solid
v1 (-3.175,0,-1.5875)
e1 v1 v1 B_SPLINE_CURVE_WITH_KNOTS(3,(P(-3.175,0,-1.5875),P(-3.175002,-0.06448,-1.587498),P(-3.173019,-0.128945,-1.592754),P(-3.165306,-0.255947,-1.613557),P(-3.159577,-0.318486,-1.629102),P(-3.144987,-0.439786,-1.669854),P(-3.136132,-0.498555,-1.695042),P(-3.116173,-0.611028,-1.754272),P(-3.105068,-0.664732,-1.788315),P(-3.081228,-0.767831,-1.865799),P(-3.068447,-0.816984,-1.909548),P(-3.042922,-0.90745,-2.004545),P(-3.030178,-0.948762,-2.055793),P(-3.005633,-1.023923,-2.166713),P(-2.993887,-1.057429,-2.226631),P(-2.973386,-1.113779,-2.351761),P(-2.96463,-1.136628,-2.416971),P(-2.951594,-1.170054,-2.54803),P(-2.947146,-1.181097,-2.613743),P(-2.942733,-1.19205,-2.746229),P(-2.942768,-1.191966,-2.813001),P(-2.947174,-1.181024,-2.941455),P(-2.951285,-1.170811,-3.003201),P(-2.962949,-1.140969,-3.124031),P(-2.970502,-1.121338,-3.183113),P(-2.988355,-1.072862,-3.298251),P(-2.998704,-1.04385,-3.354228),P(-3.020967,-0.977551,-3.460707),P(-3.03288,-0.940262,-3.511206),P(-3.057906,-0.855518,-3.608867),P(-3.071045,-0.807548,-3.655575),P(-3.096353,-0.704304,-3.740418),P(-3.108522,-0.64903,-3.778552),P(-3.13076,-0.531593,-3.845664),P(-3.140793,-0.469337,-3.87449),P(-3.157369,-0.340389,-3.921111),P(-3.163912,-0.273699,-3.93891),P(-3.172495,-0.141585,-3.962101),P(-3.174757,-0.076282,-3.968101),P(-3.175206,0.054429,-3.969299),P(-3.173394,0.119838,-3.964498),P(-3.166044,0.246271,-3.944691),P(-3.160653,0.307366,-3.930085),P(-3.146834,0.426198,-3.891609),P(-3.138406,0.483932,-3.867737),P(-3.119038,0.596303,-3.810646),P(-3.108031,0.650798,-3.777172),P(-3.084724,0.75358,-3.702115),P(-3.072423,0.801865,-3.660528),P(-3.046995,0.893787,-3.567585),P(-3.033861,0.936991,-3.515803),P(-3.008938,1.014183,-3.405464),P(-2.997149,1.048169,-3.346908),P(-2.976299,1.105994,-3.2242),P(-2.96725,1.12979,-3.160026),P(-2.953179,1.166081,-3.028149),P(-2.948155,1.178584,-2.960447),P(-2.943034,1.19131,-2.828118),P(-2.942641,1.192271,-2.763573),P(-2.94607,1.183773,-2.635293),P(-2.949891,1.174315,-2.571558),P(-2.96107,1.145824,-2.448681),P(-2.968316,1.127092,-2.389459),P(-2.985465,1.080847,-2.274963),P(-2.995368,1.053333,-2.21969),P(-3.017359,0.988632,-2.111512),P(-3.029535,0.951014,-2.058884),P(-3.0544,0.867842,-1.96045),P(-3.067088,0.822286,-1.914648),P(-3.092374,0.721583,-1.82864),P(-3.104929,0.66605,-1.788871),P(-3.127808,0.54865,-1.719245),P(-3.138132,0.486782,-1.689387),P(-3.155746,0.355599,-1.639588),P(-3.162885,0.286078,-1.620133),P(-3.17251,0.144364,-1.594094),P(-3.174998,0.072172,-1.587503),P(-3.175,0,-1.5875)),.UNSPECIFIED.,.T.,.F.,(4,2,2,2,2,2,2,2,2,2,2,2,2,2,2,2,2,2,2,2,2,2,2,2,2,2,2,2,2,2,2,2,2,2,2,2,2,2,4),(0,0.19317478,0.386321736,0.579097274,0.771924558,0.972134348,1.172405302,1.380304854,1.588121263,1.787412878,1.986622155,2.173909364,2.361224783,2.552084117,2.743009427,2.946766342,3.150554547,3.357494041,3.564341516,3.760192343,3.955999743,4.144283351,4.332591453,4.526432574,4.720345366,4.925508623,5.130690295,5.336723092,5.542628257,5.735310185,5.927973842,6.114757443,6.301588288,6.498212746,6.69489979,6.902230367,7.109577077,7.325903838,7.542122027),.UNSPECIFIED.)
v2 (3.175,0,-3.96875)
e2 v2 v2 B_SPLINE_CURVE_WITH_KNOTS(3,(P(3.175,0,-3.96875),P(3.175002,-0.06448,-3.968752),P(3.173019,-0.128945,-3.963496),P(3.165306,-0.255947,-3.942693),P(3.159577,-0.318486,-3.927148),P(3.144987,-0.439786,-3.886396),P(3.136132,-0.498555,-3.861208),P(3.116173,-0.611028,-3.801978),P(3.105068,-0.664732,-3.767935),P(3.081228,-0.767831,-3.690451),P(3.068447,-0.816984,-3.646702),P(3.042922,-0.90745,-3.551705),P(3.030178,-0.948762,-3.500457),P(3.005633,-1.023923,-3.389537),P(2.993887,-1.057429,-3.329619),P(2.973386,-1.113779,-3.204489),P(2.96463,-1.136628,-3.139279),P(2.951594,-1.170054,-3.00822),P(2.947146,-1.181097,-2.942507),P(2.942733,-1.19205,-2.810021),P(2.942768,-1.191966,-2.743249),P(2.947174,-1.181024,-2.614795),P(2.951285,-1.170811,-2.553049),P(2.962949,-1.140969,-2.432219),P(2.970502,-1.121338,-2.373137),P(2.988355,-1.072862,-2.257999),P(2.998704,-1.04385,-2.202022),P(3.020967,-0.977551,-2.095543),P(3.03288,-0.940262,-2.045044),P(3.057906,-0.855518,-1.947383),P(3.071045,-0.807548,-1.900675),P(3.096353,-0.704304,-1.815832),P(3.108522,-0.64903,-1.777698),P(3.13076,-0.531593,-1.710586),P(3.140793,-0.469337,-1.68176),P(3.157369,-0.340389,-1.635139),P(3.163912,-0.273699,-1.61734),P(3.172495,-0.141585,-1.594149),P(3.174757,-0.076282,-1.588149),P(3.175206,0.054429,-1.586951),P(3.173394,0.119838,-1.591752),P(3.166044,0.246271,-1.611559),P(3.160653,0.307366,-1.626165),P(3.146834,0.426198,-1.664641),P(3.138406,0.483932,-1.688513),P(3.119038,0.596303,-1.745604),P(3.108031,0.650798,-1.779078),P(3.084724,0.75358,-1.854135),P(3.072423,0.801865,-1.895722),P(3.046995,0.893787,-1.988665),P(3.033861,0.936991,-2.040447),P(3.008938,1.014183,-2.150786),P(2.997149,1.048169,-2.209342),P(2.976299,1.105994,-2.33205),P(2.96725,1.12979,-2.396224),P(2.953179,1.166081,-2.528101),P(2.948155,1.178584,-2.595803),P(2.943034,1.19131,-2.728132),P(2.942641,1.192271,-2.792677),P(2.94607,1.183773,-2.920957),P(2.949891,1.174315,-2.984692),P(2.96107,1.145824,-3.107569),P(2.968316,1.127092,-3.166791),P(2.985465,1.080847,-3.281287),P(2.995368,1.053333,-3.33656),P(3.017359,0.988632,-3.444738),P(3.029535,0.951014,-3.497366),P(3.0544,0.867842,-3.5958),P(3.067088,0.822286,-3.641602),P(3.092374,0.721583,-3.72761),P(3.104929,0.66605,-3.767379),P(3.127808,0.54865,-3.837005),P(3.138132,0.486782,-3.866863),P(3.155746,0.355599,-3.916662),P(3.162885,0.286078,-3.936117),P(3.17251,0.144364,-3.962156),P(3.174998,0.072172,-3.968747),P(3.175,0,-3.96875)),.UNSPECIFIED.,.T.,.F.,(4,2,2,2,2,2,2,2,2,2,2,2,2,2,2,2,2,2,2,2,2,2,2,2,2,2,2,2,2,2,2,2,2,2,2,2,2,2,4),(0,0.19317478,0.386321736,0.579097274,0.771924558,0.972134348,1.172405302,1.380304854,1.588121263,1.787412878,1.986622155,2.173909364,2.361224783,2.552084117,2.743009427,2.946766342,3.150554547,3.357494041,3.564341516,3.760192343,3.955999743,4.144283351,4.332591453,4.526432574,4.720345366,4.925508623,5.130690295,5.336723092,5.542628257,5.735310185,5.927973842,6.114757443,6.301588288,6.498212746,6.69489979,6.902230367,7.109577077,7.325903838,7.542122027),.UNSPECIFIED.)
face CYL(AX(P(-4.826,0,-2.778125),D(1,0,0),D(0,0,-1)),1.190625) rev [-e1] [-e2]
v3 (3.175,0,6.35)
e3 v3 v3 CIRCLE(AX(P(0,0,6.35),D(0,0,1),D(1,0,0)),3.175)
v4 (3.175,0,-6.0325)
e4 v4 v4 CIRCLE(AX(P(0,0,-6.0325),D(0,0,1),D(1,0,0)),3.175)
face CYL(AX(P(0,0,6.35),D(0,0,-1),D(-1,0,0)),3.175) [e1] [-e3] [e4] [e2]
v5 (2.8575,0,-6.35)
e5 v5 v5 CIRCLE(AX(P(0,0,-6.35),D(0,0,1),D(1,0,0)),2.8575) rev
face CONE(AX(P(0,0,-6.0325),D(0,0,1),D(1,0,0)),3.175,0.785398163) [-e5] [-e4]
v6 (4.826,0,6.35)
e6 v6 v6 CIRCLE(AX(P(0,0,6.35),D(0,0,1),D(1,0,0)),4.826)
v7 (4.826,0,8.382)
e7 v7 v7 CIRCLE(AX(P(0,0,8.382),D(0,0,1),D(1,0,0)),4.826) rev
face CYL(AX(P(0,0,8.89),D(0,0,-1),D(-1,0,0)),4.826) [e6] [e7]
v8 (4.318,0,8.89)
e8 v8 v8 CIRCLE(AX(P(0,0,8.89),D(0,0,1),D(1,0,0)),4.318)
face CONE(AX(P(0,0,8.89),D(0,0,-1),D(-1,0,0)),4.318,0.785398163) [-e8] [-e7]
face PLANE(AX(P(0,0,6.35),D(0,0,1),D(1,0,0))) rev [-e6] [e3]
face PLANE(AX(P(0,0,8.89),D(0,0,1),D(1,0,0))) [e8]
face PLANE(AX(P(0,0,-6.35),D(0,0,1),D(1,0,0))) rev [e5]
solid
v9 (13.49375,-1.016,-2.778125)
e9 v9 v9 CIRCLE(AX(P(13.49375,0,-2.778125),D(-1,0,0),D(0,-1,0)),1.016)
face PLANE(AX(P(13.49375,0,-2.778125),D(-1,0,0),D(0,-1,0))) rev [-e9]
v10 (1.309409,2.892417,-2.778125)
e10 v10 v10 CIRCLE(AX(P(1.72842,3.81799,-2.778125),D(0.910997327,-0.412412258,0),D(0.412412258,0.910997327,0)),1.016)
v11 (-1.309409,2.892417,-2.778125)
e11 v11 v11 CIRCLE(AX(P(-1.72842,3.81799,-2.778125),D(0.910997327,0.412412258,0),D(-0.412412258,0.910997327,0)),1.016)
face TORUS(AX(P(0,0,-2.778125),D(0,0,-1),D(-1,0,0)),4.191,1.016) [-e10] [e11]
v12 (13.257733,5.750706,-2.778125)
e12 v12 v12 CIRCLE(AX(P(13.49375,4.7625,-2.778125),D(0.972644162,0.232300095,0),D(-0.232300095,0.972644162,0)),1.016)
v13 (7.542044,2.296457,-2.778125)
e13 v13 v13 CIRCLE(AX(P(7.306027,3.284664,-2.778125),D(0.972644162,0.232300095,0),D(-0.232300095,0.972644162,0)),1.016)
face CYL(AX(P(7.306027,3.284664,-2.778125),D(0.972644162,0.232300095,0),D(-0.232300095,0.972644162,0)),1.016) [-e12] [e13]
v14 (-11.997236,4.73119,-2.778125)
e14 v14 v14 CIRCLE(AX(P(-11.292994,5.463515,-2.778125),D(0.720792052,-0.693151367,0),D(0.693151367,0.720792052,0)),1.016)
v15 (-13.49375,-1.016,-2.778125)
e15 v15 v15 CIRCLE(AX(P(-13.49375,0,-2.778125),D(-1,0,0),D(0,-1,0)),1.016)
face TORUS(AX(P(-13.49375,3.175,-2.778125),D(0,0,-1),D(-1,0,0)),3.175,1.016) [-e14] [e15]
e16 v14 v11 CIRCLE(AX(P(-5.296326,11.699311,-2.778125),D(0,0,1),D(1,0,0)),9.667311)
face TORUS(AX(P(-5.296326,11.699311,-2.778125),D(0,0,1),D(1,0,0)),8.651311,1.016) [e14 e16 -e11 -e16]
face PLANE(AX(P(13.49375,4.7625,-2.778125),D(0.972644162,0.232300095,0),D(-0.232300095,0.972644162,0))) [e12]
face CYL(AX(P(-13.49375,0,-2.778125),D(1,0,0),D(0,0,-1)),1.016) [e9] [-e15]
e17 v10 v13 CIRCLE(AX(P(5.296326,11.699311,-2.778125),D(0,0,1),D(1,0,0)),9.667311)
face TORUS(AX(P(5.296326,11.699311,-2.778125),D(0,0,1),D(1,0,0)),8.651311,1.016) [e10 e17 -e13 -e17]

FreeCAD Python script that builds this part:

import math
import FreeCAD as App
import Part
import Sketcher
Q = App.Units.Quantity


def edges_at(feature, points):
    """Names of the edges that pass closest to the given points."""
    edges = feature.Shape.Edges
    near = lambda p: min(range(len(edges)), key=lambda i: edges[i].distToShape(Part.Vertex(*p))[0])
    return sorted({f"Edge{near(p) + 1}" for p in points})

doc = App.newDocument("Part")
body = doc.addObject("PartDesign::Body", "Body")

sketch1 = body.newObject("Sketcher::SketchObject", "Sketch")
sketch1.AttachmentSupport = (doc.getObject("XY_Plane"), [""])
sketch1.MapMode = "FlatFace"
sketch1.addGeometry(Part.Circle(App.Vector(0, 0, 0), App.Vector(0, 0, 1), 3.2), False)
sketch1.addConstraint(Sketcher.Constraint("Coincident", 0, 3, -1, 1))
sketch1.addConstraint(Sketcher.Constraint("Diameter", 0, Q("0.25 in")))
pad1 = body.newObject("PartDesign::Pad", "Pad")
pad1.Profile = sketch1
pad1.Length = Q("0.5 in")
pad1.Midplane = True

sketch2 = body.newObject("Sketcher::SketchObject", "Sketch001")
sketch2.AttachmentSupport = (doc.getObject("XY_Plane"), [""])
sketch2.MapMode = "FlatFace"
sketch2.AttachmentOffset = App.Placement(App.Vector(0, 0, 0.25 * 25.4), App.Rotation())
sketch2.addGeometry(Part.Circle(App.Vector(0, 0, 0), App.Vector(0, 0, 1), 4.8), False)
sketch2.addConstraint(Sketcher.Constraint("Coincident", 0, 3, -1, 1))
sketch2.addConstraint(Sketcher.Constraint("Diameter", 0, Q("0.38 in")))
pad2 = body.newObject("PartDesign::Pad", "Pad001")
pad2.Profile = sketch2
pad2.Length = Q("0.1 in")
doc.recompute()

chamfer = body.newObject("PartDesign::Chamfer", "Chamfer")
chamfer.Base = (pad2, edges_at(pad2, [(-4.826, 0, 8.89)]))
chamfer.Size = Q("0.02 in")

sketch3 = body.newObject("Sketcher::SketchObject", "Sketch002")
sketch3.AttachmentSupport = (doc.getObject("YZ_Plane"), [""])
sketch3.MapMode = "FlatFace"
sketch3.addGeometry(Part.Circle(App.Vector(0, -2.8, 0), App.Vector(0, 0, 1), 1.2), False)
sketch3.addConstraint(Sketcher.Constraint("PointOnObject", 0, 3, -2))
sketch3.addConstraint(Sketcher.Constraint("Diameter", 0, Q("0.09375 in")))
sketch3.addConstraint(Sketcher.Constraint("DistanceY", 0, 3, -1, 1, Q("0.109375 in")))
pocket1 = body.newObject("PartDesign::Pocket", "Pocket")
pocket1.Profile = sketch3
pocket1.Type = "ThroughAll"
pocket1.Midplane = True
doc.recompute()

chamfer2 = body.newObject("PartDesign::Chamfer", "Chamfer001")
chamfer2.Base = (pocket1, edges_at(pocket1, [(-3.175, 0, -6.35)]))
chamfer2.Size = Q("0.0125 in")
body2 = doc.addObject("PartDesign::Body", "Body001")

sketch4 = body2.newObject("Sketcher::SketchObject", "Sketch003")
sketch4.AttachmentSupport = (doc.getObject("YZ_Plane001"), [""])
sketch4.MapMode = "FlatFace"
sketch4.AttachmentOffset = App.Placement(App.Vector(0, 0, 0.53125 * 25.4), App.Rotation())
sketch4.addGeometry(Part.Circle(App.Vector(0, -2.8, 0), App.Vector(0, 0, 1), 1), False)
sketch4.addConstraint(Sketcher.Constraint("PointOnObject", 0, 3, -2))
sketch4.addConstraint(Sketcher.Constraint("Diameter", 0, Q("0.08 in")))
sketch4.addConstraint(Sketcher.Constraint("DistanceY", 0, 3, -1, 1, Q("0.109375 in")))

sketch5 = body2.newObject("Sketcher::SketchObject", "Sketch004")
sketch5.AttachmentSupport = (doc.getObject("XY_Plane001"), [""])
sketch5.MapMode = "FlatFace"
sketch5.AttachmentOffset = App.Placement(App.Vector(0, 0, -0.109375 * 25.4), App.Rotation())
sketch5.addGeometry(Part.LineSegment(App.Vector(13.5, 0, 0), App.Vector(-13.5, 0, 0)), False)
sketch5.addGeometry(Part.ArcOfCircle(Part.Circle(App.Vector(-13.5, 3.2, 0), App.Vector(0, 0, 1), 3.2), math.radians(46), math.radians(270)), False)
sketch5.addGeometry(Part.ArcOfCircle(Part.Circle(App.Vector(-5.3, 11.7, 0), App.Vector(0, 0, 1), 8.7), math.radians(-134), math.radians(-66)), False)
sketch5.addGeometry(Part.ArcOfCircle(Part.Circle(App.Vector(0, 0, 0), App.Vector(0, 0, 1), 4.2), math.radians(66), math.radians(114)), False)
sketch5.addGeometry(Part.ArcOfCircle(Part.Circle(App.Vector(5.3, 11.7, 0), App.Vector(0, 0, 1), 8.7), math.radians(-114), math.radians(-77)), False)
sketch5.addGeometry(Part.LineSegment(App.Vector(7.3, 3.3, 0), App.Vector(13.5, 4.8, 0)), False)
sketch5.addConstraint(Sketcher.Constraint("Tangent", 0, 2, 1, 2))
sketch5.addConstraint(Sketcher.Constraint("Tangent", 1, 1, 2, 1))
sketch5.addConstraint(Sketcher.Constraint("Tangent", 2, 2, 3, 2))
sketch5.addConstraint(Sketcher.Constraint("Tangent", 3, 1, 4, 1))
sketch5.addConstraint(Sketcher.Constraint("Tangent", 4, 2, 5, 1))
sketch5.addConstraint(Sketcher.Constraint("Horizontal", 0))
sketch5.addConstraint(Sketcher.Constraint("Coincident", 3, 3, -1, 1))
sketch5.addConstraint(Sketcher.Constraint("Equal", 2, 4))
sketch5.addConstraint(Sketcher.Constraint("Symmetric", 0, 1, 0, 2, -1, 1))
sketch5.addConstraint(Sketcher.Constraint("Horizontal", 2, 3, 4, 3))
sketch5.addConstraint(Sketcher.Constraint("Vertical", 0, 1, 5, 2))
sketch5.addConstraint(Sketcher.Constraint("Radius", 1, Q("0.125 in")))
sketch5.addConstraint(Sketcher.Constraint("Radius", 3, Q("0.165 in")))
sketch5.addConstraint(Sketcher.Constraint("DistanceX", 0, 2, 0, 1, Q("1.0625 in")))
sketch5.addConstraint(Sketcher.Constraint("DistanceY", -1, 1, 5, 2, Q("0.1875 in")))
sketch5.addConstraint(Sketcher.Constraint("Radius", 2, Q("8.651311 mm")))
doc.recompute()

additivepipe = body2.newObject("PartDesign::AdditivePipe", "AdditivePipe")
additivepipe.Profile = sketch4
additivepipe.Spine = (sketch5, ["Edge1", "Edge2", "Edge3", "Edge4", "Edge5", "Edge6"])

doc.recompute()
